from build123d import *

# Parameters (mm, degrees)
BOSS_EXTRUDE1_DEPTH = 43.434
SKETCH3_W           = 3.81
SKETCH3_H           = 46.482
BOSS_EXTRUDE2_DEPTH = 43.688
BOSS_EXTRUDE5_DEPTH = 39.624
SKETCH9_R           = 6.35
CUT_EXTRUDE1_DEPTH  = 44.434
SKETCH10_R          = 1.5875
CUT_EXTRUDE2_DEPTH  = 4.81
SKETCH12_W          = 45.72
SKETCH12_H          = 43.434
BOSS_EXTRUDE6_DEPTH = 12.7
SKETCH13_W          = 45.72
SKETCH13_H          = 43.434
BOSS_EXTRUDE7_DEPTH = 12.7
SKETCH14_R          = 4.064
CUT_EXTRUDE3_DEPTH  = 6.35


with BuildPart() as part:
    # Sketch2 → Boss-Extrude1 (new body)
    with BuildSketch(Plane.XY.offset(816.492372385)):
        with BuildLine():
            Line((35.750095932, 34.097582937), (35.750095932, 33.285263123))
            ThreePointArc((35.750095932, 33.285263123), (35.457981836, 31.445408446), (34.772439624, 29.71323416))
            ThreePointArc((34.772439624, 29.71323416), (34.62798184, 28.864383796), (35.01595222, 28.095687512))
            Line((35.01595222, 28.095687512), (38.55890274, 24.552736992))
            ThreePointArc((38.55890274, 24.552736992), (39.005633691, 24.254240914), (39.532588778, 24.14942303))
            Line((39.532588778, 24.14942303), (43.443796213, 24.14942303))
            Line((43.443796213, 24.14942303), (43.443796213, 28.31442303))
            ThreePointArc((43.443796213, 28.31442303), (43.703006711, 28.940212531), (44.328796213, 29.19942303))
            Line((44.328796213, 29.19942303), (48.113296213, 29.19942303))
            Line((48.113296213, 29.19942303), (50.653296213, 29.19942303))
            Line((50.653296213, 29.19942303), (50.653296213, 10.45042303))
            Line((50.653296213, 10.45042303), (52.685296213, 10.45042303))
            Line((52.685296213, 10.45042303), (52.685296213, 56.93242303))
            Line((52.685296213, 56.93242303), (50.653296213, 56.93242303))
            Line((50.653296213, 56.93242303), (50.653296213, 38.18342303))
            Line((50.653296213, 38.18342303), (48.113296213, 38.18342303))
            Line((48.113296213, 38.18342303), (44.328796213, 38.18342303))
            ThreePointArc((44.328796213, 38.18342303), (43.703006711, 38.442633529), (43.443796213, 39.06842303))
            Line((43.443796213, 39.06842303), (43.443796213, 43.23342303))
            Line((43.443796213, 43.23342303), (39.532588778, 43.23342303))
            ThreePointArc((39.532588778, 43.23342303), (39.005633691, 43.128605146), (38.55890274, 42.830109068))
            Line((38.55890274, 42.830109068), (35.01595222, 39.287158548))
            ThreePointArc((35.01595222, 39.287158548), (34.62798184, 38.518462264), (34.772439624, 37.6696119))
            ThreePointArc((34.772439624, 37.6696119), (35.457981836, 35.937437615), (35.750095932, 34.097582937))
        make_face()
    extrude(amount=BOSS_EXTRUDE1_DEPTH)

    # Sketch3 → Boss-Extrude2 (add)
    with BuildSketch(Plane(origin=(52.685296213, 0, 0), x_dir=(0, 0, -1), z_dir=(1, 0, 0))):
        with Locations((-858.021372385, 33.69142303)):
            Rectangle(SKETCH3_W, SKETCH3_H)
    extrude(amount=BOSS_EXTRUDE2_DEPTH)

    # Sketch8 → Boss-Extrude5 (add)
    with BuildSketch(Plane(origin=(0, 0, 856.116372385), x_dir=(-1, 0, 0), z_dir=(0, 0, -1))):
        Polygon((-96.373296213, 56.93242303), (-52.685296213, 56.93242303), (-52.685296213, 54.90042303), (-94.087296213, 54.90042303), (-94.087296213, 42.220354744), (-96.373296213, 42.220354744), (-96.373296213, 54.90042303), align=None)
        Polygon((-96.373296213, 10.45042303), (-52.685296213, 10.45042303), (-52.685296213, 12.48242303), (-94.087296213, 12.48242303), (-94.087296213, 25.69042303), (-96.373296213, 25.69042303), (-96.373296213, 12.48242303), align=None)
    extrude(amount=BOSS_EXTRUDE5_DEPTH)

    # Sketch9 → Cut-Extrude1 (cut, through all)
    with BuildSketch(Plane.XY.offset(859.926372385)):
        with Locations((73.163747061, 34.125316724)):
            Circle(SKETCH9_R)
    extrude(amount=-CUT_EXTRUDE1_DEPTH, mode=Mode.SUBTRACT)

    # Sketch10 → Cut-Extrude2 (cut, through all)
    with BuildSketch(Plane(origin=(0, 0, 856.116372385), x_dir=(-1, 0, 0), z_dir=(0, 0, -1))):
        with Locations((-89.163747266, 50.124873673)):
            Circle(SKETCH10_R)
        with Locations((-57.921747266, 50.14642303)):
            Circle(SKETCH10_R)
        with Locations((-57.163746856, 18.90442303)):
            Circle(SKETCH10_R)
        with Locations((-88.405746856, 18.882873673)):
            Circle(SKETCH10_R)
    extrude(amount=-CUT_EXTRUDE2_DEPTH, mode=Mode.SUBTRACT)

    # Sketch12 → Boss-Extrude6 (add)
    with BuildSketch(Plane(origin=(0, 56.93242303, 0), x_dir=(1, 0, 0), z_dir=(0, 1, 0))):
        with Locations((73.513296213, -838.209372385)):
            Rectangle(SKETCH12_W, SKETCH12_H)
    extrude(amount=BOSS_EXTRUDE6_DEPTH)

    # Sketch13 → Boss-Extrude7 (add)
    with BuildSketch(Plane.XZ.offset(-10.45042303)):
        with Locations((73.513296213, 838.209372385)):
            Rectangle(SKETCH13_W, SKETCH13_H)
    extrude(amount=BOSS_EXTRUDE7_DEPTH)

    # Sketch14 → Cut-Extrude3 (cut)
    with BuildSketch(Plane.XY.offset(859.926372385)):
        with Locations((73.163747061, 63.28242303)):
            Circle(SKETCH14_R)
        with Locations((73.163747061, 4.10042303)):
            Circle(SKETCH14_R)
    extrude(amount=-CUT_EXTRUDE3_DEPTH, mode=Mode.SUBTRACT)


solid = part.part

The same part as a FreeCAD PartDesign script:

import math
import FreeCAD as App
import Part
import Sketcher

V = App.Vector
Q = App.Units.Quantity

doc = App.newDocument("Part")
body = doc.addObject("PartDesign::Body", "Body")

sketch1 = body.newObject("Sketcher::SketchObject", "Sketch")
sketch1.AttachmentSupport = (doc.getObject("XY_Plane"), [""])
sketch1.MapMode = "FlatFace"
sketch1.AttachmentOffset = App.Placement(V(0, 0, 816.492372), App.Rotation())
sketch1.addGeometry(Part.LineSegment(V(35.750096, 34.097583, 0), V(35.750096, 33.285263, 0)), False)
sketch1.addGeometry(Part.ArcOfCircle(Part.Circle(V(27.251796, 33.691423, 0), V(0, 0, 1), 8.508), math.radians(-27.877462), math.radians(-2.73626)), False)
sketch1.addGeometry(Part.ArcOfCircle(Part.Circle(V(35.989638, 29.069374, 0), V(0, 0, 1), 1.377), math.radians(152.122538), math.radians(225)), False)
sketch1.addGeometry(Part.LineSegment(V(35.015952, 28.095688, 0), V(38.558903, 24.552737, 0)), False)
sketch1.addGeometry(Part.ArcOfCircle(Part.Circle(V(39.532589, 25.526423, 0), V(0, 0, 1), 1.377), math.radians(-135), math.radians(-90)), False)
sketch1.addGeometry(Part.LineSegment(V(39.532589, 24.149423, 0), V(43.443796, 24.149423, 0)), False)
sketch1.addGeometry(Part.LineSegment(V(43.443796, 24.149423, 0), V(43.443796, 28.314423, 0)), False)
sketch1.addGeometry(Part.ArcOfCircle(Part.Circle(V(44.328796, 28.314423, 0), V(0, 0, 1), 0.885), math.radians(90), math.radians(180)), False)
sketch1.addGeometry(Part.LineSegment(V(44.328796, 29.199423, 0), V(50.653296, 29.199423, 0)), False)
sketch1.addGeometry(Part.LineSegment(V(50.653296, 29.199423, 0), V(50.653296, 10.450423, 0)), False)
sketch1.addGeometry(Part.LineSegment(V(50.653296, 10.450423, 0), V(52.685296, 10.450423, 0)), False)
sketch1.addGeometry(Part.LineSegment(V(52.685296, 10.450423, 0), V(52.685296, 56.932423, 0)), False)
sketch1.addGeometry(Part.LineSegment(V(52.685296, 56.932423, 0), V(50.653296, 56.932423, 0)), False)
sketch1.addGeometry(Part.LineSegment(V(50.653296, 56.932423, 0), V(50.653296, 38.183423, 0)), False)
sketch1.addGeometry(Part.LineSegment(V(50.653296, 38.183423, 0), V(44.328796, 38.183423, 0)), False)
sketch1.addGeometry(Part.ArcOfCircle(Part.Circle(V(44.328796, 39.068423, 0), V(0, 0, 1), 0.885), math.radians(180), math.radians(270)), False)
sketch1.addGeometry(Part.LineSegment(V(43.443796, 39.068423, 0), V(43.443796, 43.233423, 0)), False)
sketch1.addGeometry(Part.LineSegment(V(43.443796, 43.233423, 0), V(39.532589, 43.233423, 0)), False)
sketch1.addGeometry(Part.ArcOfCircle(Part.Circle(V(39.532589, 41.856423, 0), V(0, 0, 1), 1.377), math.radians(90), math.radians(135)), False)
sketch1.addGeometry(Part.LineSegment(V(38.558903, 42.830109, 0), V(35.015952, 39.287159, 0)), False)
sketch1.addGeometry(Part.ArcOfCircle(Part.Circle(V(35.989638, 38.313473, 0), V(0, 0, 1), 1.377), math.radians(135), math.radians(207.877462)), False)
sketch1.addGeometry(Part.ArcOfCircle(Part.Circle(V(27.251796, 33.691423, 0), V(0, 0, 1), 8.508), math.radians(2.73626), math.radians(27.877462)), False)
sketch1.addConstraint(Sketcher.Constraint("Coincident", 0, 2, 1, 2))
sketch1.addConstraint(Sketcher.Constraint("Tangent", 1, 1, 2, 1))
sketch1.addConstraint(Sketcher.Constraint("Tangent", 2, 2, 3, 1))
sketch1.addConstraint(Sketcher.Constraint("Tangent", 3, 2, 4, 1))
sketch1.addConstraint(Sketcher.Constraint("Tangent", 4, 2, 5, 1))
sketch1.addConstraint(Sketcher.Constraint("Coincident", 5, 2, 6, 1))
sketch1.addConstraint(Sketcher.Constraint("Tangent", 6, 2, 7, 2))
sketch1.addConstraint(Sketcher.Constraint("Tangent", 7, 1, 8, 1))
sketch1.addConstraint(Sketcher.Constraint("Coincident", 8, 2, 9, 1))
sketch1.addConstraint(Sketcher.Constraint("Coincident", 9, 2, 10, 1))
sketch1.addConstraint(Sketcher.Constraint("Coincident", 10, 2, 11, 1))
sketch1.addConstraint(Sketcher.Constraint("Coincident", 11, 2, 12, 1))
sketch1.addConstraint(Sketcher.Constraint("Coincident", 12, 2, 13, 1))
sketch1.addConstraint(Sketcher.Constraint("Coincident", 13, 2, 14, 1))
sketch1.addConstraint(Sketcher.Constraint("Tangent", 14, 2, 15, 2))
sketch1.addConstraint(Sketcher.Constraint("Tangent", 15, 1, 16, 1))
sketch1.addConstraint(Sketcher.Constraint("Coincident", 16, 2, 17, 1))
sketch1.addConstraint(Sketcher.Constraint("Tangent", 17, 2, 18, 1))
sketch1.addConstraint(Sketcher.Constraint("Tangent", 18, 2, 19, 1))
sketch1.addConstraint(Sketcher.Constraint("Tangent", 19, 2, 20, 1))
sketch1.addConstraint(Sketcher.Constraint("Tangent", 20, 2, 21, 2))
sketch1.addConstraint(Sketcher.Constraint("Coincident", 21, 1, 0, 1))
sketch1.addConstraint(Sketcher.Constraint("Vertical", 0))
sketch1.addConstraint(Sketcher.Constraint("Horizontal", 5))
sketch1.addConstraint(Sketcher.Constraint("Vertical", 6))
sketch1.addConstraint(Sketcher.Constraint("Horizontal", 8))
sketch1.addConstraint(Sketcher.Constraint("Vertical", 9))
sketch1.addConstraint(Sketcher.Constraint("Horizontal", 10))
sketch1.addConstraint(Sketcher.Constraint("Vertical", 11))
sketch1.addConstraint(Sketcher.Constraint("Horizontal", 12))
sketch1.addConstraint(Sketcher.Constraint("Vertical", 13))
sketch1.addConstraint(Sketcher.Constraint("Horizontal", 14))
sketch1.addConstraint(Sketcher.Constraint("Vertical", 16))
sketch1.addConstraint(Sketcher.Constraint("Horizontal", 17))
sketch1.addConstraint(Sketcher.Constraint("Coincident", 21, 3, 1, 3))
sketch1.addConstraint(Sketcher.Constraint("Equal", 2, 4))
sketch1.addConstraint(Sketcher.Constraint("Equal", 7, 15))
sketch1.addConstraint(Sketcher.Constraint("Equal", 4, 18))
sketch1.addConstraint(Sketcher.Constraint("Equal", 18, 20))
sketch1.addConstraint(Sketcher.Constraint("Equal", 1, 21))
sketch1.addConstraint(Sketcher.Constraint("Perpendicular", 3, 19))
sketch1.addConstraint(Sketcher.Constraint("Vertical", 7, 3, 15, 3))
sketch1.addConstraint(Sketcher.Constraint("Vertical", 4, 3, 18, 3))
sketch1.addConstraint(Sketcher.Constraint("Vertical", 2, 3, 20, 3))
sketch1.addConstraint(Sketcher.Constraint("Vertical", 9, 2, 12, 2))
sketch1.addConstraint(Sketcher.Constraint("Vertical", 3, 2, 18, 2))
sketch1.addConstraint(Sketcher.Constraint("Equal", 9, 13))
sketch1.addConstraint(Sketcher.Constraint("Equal", 6, 16))
sketch1.addConstraint(Sketcher.Constraint("DistanceX", 10, 1, 10, 2, Q("0.08 in")))
sketch1.addConstraint(Sketcher.Constraint("DistanceY", 11, 1, 11, 2, Q("1.83 in")))
sketch1.addConstraint(Sketcher.Constraint("Radius", 1, Q("8.508 mm")))
sketch1.addConstraint(Sketcher.Constraint("Radius", 2, Q("1.377 mm")))
sketch1.addConstraint(Sketcher.Constraint("Radius", 7, Q("0.885 mm")))
sketch1.addConstraint(Sketcher.Constraint("DistanceX", 8, 1, 8, 2, Q("6.3245 mm")))
sketch1.addConstraint(Sketcher.Constraint("DistanceY", 6, 1, 6, 2, Q("4.165 mm")))
sketch1.addConstraint(Sketcher.Constraint("DistanceY", 9, 2, 9, 1, Q("18.749 mm")))
sketch1.addConstraint(Sketcher.Constraint("DistanceY", 0, 2, 0, 1, Q("0.81232 mm")))
sketch1.addConstraint(Sketcher.Constraint("DistanceX", 1, 3, 7, 3, Q("17.077 mm")))
sketch1.addConstraint(Sketcher.Constraint("DistanceY", 2, 3, 20, 3, Q("9.244099 mm")))
sketch1.addConstraint(Sketcher.Constraint("DistanceX", -1, 1, 2, 3, Q("35.989638 mm")))
sketch1.addConstraint(Sketcher.Constraint("DistanceY", -1, 1, 18, 2, Q("42.830109 mm")))
pad1 = body.newObject("PartDesign::Pad", "Pad")
pad1.Profile = sketch1
pad1.Length = Q("1.71 in")

sketch2 = body.newObject("Sketcher::SketchObject", "Sketch001")
sketch2.AttachmentSupport = (doc.getObject("YZ_Plane"), [""])
sketch2.MapMode = "FlatFace"
sketch2.AttachmentOffset = App.Placement(V(0, 0, 52.685296), App.Rotation())
sketch2.addGeometry(Part.LineSegment(V(56.932423, 859.926372, 0), V(10.450423, 859.926372, 0)), False)
sketch2.addGeometry(Part.LineSegment(V(10.450423, 859.926372, 0), V(10.450423, 856.116372, 0)), False)
sketch2.addGeometry(Part.LineSegment(V(10.450423, 856.116372, 0), V(56.932423, 856.116372, 0)), False)
sketch2.addGeometry(Part.LineSegment(V(56.932423, 856.116372, 0), V(56.932423, 859.926372, 0)), False)
sketch2.addConstraint(Sketcher.Constraint("Coincident", 0, 2, 1, 1))
sketch2.addConstraint(Sketcher.Constraint("Coincident", 1, 2, 2, 1))
sketch2.addConstraint(Sketcher.Constraint("Coincident", 2, 2, 3, 1))
sketch2.addConstraint(Sketcher.Constraint("Coincident", 3, 2, 0, 1))
sketch2.addConstraint(Sketcher.Constraint("Horizontal", 0))
sketch2.addConstraint(Sketcher.Constraint("Vertical", 1))
sketch2.addConstraint(Sketcher.Constraint("Horizontal", 2))
sketch2.addConstraint(Sketcher.Constraint("Vertical", 3))
sketch2.addConstraint(Sketcher.Constraint("DistanceX", 0, 2, 0, 1, Q("1.83 in")))
sketch2.addConstraint(Sketcher.Constraint("DistanceY", 1, 2, 1, 1, Q("0.15 in")))
sketch2.addConstraint(Sketcher.Constraint("DistanceX", -1, 1, 0, 2, Q("10.450423 mm")))
sketch2.addConstraint(Sketcher.Constraint("DistanceY", -1, 1, 0, 2, Q("859.926372 mm")))
pad2 = body.newObject("PartDesign::Pad", "Pad001")
pad2.Profile = sketch2
pad2.Length = Q("1.72 in")

sketch3 = body.newObject("Sketcher::SketchObject", "Sketch002")
sketch3.AttachmentSupport = (doc.getObject("XY_Plane"), [""])
sketch3.MapMode = "FlatFace"
sketch3.AttachmentOffset = App.Placement(V(0, 0, 856.116372), App.Rotation())
sketch3.addGeometry(Part.LineSegment(V(52.685296, 56.932423, 0), V(96.373296, 56.932423, 0)), False)
sketch3.addGeometry(Part.LineSegment(V(96.373296, 56.932423, 0), V(96.373296, 42.220355, 0)), False)
sketch3.addGeometry(Part.LineSegment(V(96.373296, 42.220355, 0), V(94.087296, 42.220355, 0)), False)
sketch3.addGeometry(Part.LineSegment(V(94.087296, 42.220355, 0), V(94.087296, 54.900423, 0)), False)
sketch3.addGeometry(Part.LineSegment(V(94.087296, 54.900423, 0), V(52.685296, 54.900423, 0)), False)
sketch3.addGeometry(Part.LineSegment(V(52.685296, 54.900423, 0), V(52.685296, 56.932423, 0)), False)
sketch3.addGeometry(Part.LineSegment(V(96.373296, 10.450423, 0), V(52.685296, 10.450423, 0)), False)
sketch3.addGeometry(Part.LineSegment(V(52.685296, 10.450423, 0), V(52.685296, 12.482423, 0)), False)
sketch3.addGeometry(Part.LineSegment(V(52.685296, 12.482423, 0), V(94.087296, 12.482423, 0)), False)
sketch3.addGeometry(Part.LineSegment(V(94.087296, 12.482423, 0), V(94.087296, 25.690423, 0)), False)
sketch3.addGeometry(Part.LineSegment(V(94.087296, 25.690423, 0), V(96.373296, 25.690423, 0)), False)
sketch3.addGeometry(Part.LineSegment(V(96.373296, 25.690423, 0), V(96.373296, 10.450423, 0)), False)
sketch3.addConstraint(Sketcher.Constraint("Coincident", 0, 2, 1, 1))
sketch3.addConstraint(Sketcher.Constraint("Coincident", 1, 2, 2, 1))
sketch3.addConstraint(Sketcher.Constraint("Coincident", 2, 2, 3, 1))
sketch3.addConstraint(Sketcher.Constraint("Coincident", 3, 2, 4, 1))
sketch3.addConstraint(Sketcher.Constraint("Coincident", 4, 2, 5, 1))
sketch3.addConstraint(Sketcher.Constraint("Coincident", 5, 2, 0, 1))
sketch3.addConstraint(Sketcher.Constraint("Coincident", 6, 2, 7, 1))
sketch3.addConstraint(Sketcher.Constraint("Coincident", 7, 2, 8, 1))
sketch3.addConstraint(Sketcher.Constraint("Coincident", 8, 2, 9, 1))
sketch3.addConstraint(Sketcher.Constraint("Coincident", 9, 2, 10, 1))
sketch3.addConstraint(Sketcher.Constraint("Coincident", 10, 2, 11, 1))
sketch3.addConstraint(Sketcher.Constraint("Coincident", 11, 2, 6, 1))
sketch3.addConstraint(Sketcher.Constraint("Horizontal", 0))
sketch3.addConstraint(Sketcher.Constraint("Vertical", 1))
sketch3.addConstraint(Sketcher.Constraint("Horizontal", 2))
sketch3.addConstraint(Sketcher.Constraint("Vertical", 3))
sketch3.addConstraint(Sketcher.Constraint("Horizontal", 4))
sketch3.addConstraint(Sketcher.Constraint("Vertical", 5))
sketch3.addConstraint(Sketcher.Constraint("Horizontal", 6))
sketch3.addConstraint(Sketcher.Constraint("Vertical", 7))
sketch3.addConstraint(Sketcher.Constraint("Horizontal", 8))
sketch3.addConstraint(Sketcher.Constraint("Vertical", 9))
sketch3.addConstraint(Sketcher.Constraint("Horizontal", 10))
sketch3.addConstraint(Sketcher.Constraint("Vertical", 11))
sketch3.addConstraint(Sketcher.Constraint("Vertical", 5, 2, 6, 2))
sketch3.addConstraint(Sketcher.Constraint("Vertical", 3, 2, 8, 2))
sketch3.addConstraint(Sketcher.Constraint("Vertical", 1, 2, 10, 2))
sketch3.addConstraint(Sketcher.Constraint("Equal", 5, 7))
sketch3.addConstraint(Sketcher.Constraint("DistanceY", 11, 2, 11, 1, Q("0.6 in")))
sketch3.addConstraint(Sketcher.Constraint("DistanceX", 0, 1, 0, 2, Q("1.72 in")))
sketch3.addConstraint(Sketcher.Constraint("DistanceX", 2, 2, 2, 1, Q("0.09 in")))
sketch3.addConstraint(Sketcher.Constraint("DistanceY", 5, 1, 5, 2, Q("0.08 in")))
sketch3.addConstraint(Sketcher.Constraint("DistanceY", 6, 2, 4, 2, Q("1.75 in")))
sketch3.addConstraint(Sketcher.Constraint("DistanceY", 1, 2, 1, 1, Q("14.712068 mm")))
sketch3.addConstraint(Sketcher.Constraint("DistanceX", -1, 1, 0, 2, Q("96.373296 mm")))
sketch3.addConstraint(Sketcher.Constraint("DistanceY", -1, 1, 0, 2, Q("56.932423 mm")))
pad3 = body.newObject("PartDesign::Pad", "Pad002")
pad3.Profile = sketch3
pad3.Length = Q("1.56 in")
pad3.Reversed = True

sketch4 = body.newObject("Sketcher::SketchObject", "Sketch003")
sketch4.AttachmentSupport = (doc.getObject("XY_Plane"), [""])
sketch4.MapMode = "FlatFace"
sketch4.AttachmentOffset = App.Placement(V(0, 0, 859.926372), App.Rotation())
sketch4.addGeometry(Part.Circle(V(73.163747, 34.125317, 0), V(0, 0, 1), 6.35), False)
sketch4.addConstraint(Sketcher.Constraint("Diameter", 0, Q("0.5 in")))
sketch4.addConstraint(Sketcher.Constraint("DistanceX", -1, 1, 0, 3, Q("73.163747 mm")))
sketch4.addConstraint(Sketcher.Constraint("DistanceY", -1, 1, 0, 3, Q("34.125317 mm")))
pocket1 = body.newObject("PartDesign::Pocket", "Pocket")
pocket1.Profile = sketch4
pocket1.Type = "ThroughAll"

sketch5 = body.newObject("Sketcher::SketchObject", "Sketch004")
sketch5.AttachmentSupport = (doc.getObject("XY_Plane"), [""])
sketch5.MapMode = "FlatFace"
sketch5.AttachmentOffset = App.Placement(V(0, 0, 856.116372), App.Rotation())
sketch5.addGeometry(Part.Circle(V(89.163747, 50.124874, 0), V(0, 0, 1), 1.5875), False)
sketch5.addGeometry(Part.Circle(V(57.921747, 50.146423, 0), V(0, 0, 1), 1.5875), False)
sketch5.addGeometry(Part.Circle(V(57.163747, 18.904423, 0), V(0, 0, 1), 1.5875), False)
sketch5.addGeometry(Part.Circle(V(88.405747, 18.882874, 0), V(0, 0, 1), 1.5875), False)
sketch5.addConstraint(Sketcher.Constraint("Equal", 0, 1))
sketch5.addConstraint(Sketcher.Constraint("Equal", 1, 2))
sketch5.addConstraint(Sketcher.Constraint("Equal", 2, 3))
sketch5.addConstraint(Sketcher.Constraint("Diameter", 0, Q("0.125 in")))
sketch5.addConstraint(Sketcher.Constraint("DistanceX", 1, 3, 0, 3, Q("1.23 in")))
sketch5.addConstraint(Sketcher.Constraint("DistanceY", 2, 3, 1, 3, Q("1.23 in")))
sketch5.addConstraint(Sketcher.Constraint("DistanceX", 2, 3, 3, 3, Q("1.23 in")))
sketch5.addConstraint(Sketcher.Constraint("DistanceY", 3, 3, 0, 3, Q("1.23 in")))
sketch5.addConstraint(Sketcher.Constraint("DistanceX", 2, 3, 1, 3, Q("0.758 mm")))
sketch5.addConstraint(Sketcher.Constraint("DistanceY", 0, 3, 1, 3, Q("0.021549 mm")))
sketch5.addConstraint(Sketcher.Constraint("DistanceX", -1, 1, 0, 3, Q("89.163747 mm")))
sketch5.addConstraint(Sketcher.Constraint("DistanceY", -1, 1, 0, 3, Q("50.124874 mm")))
pocket2 = body.newObject("PartDesign::Pocket", "Pocket001")
pocket2.Profile = sketch5
pocket2.Type = "ThroughAll"
pocket2.Reversed = True

sketch6 = body.newObject("Sketcher::SketchObject", "Sketch005")
sketch6.AttachmentSupport = (doc.getObject("XZ_Plane"), [""])
sketch6.MapMode = "FlatFace"
sketch6.AttachmentOffset = App.Placement(V(0, 0, -56.932423), App.Rotation())
sketch6.addGeometry(Part.LineSegment(V(50.653296, 816.492372, 0), V(50.653296, 859.926372, 0)), False)
sketch6.addGeometry(Part.LineSegment(V(50.653296, 859.926372, 0), V(96.373296, 859.926372, 0)), False)
sketch6.addGeometry(Part.LineSegment(V(96.373296, 859.926372, 0), V(96.373296, 816.492372, 0)), False)
sketch6.addGeometry(Part.LineSegment(V(96.373296, 816.492372, 0), V(50.653296, 816.492372, 0)), False)
sketch6.addConstraint(Sketcher.Constraint("Coincident", 0, 2, 1, 1))
sketch6.addConstraint(Sketcher.Constraint("Coincident", 1, 2, 2, 1))
sketch6.addConstraint(Sketcher.Constraint("Coincident", 2, 2, 3, 1))
sketch6.addConstraint(Sketcher.Constraint("Coincident", 3, 2, 0, 1))
sketch6.addConstraint(Sketcher.Constraint("Vertical", 0))
sketch6.addConstraint(Sketcher.Constraint("Horizontal", 1))
sketch6.addConstraint(Sketcher.Constraint("Vertical", 2))
sketch6.addConstraint(Sketcher.Constraint("Horizontal", 3))
sketch6.addConstraint(Sketcher.Constraint("DistanceX", 1, 1, 1, 2, Q("1.8 in")))
sketch6.addConstraint(Sketcher.Constraint("DistanceY", 0, 1, 0, 2, Q("1.71 in")))
sketch6.addConstraint(Sketcher.Constraint("DistanceX", -1, 1, 0, 2, Q("50.653296 mm")))
sketch6.addConstraint(Sketcher.Constraint("DistanceY", -1, 1, 0, 2, Q("859.926372 mm")))
pad4 = body.newObject("PartDesign::Pad", "Pad003")
pad4.Profile = sketch6
pad4.Length = Q("0.5 in")
pad4.Reversed = True

sketch7 = body.newObject("Sketcher::SketchObject", "Sketch006")
sketch7.AttachmentSupport = (doc.getObject("XZ_Plane"), [""])
sketch7.MapMode = "FlatFace"
sketch7.AttachmentOffset = App.Placement(V(0, 0, -10.450423), App.Rotation())
sketch7.addGeometry(Part.LineSegment(V(50.653296, 859.926372, 0), V(50.653296, 816.492372, 0)), False)
sketch7.addGeometry(Part.LineSegment(V(50.653296, 816.492372, 0), V(96.373296, 816.492372, 0)), False)
sketch7.addGeometry(Part.LineSegment(V(96.373296, 816.492372, 0), V(96.373296, 859.926372, 0)), False)
sketch7.addGeometry(Part.LineSegment(V(96.373296, 859.926372, 0), V(50.653296, 859.926372, 0)), False)
sketch7.addConstraint(Sketcher.Constraint("Coincident", 0, 2, 1, 1))
sketch7.addConstraint(Sketcher.Constraint("Coincident", 1, 2, 2, 1))
sketch7.addConstraint(Sketcher.Constraint("Coincident", 2, 2, 3, 1))
sketch7.addConstraint(Sketcher.Constraint("Coincident", 3, 2, 0, 1))
sketch7.addConstraint(Sketcher.Constraint("Vertical", 0))
sketch7.addConstraint(Sketcher.Constraint("Horizontal", 1))
sketch7.addConstraint(Sketcher.Constraint("Vertical", 2))
sketch7.addConstraint(Sketcher.Constraint("Horizontal", 3))
sketch7.addConstraint(Sketcher.Constraint("DistanceX", 1, 1, 1, 2, Q("1.8 in")))
sketch7.addConstraint(Sketcher.Constraint("DistanceY", 0, 2, 0, 1, Q("1.71 in")))
sketch7.addConstraint(Sketcher.Constraint("DistanceX", -1, 1, 0, 2, Q("50.653296 mm")))
sketch7.addConstraint(Sketcher.Constraint("DistanceY", -1, 1, 0, 2, Q("816.492372 mm")))
pad5 = body.newObject("PartDesign::Pad", "Pad004")
pad5.Profile = sketch7
pad5.Length = Q("0.5 in")

sketch8 = body.newObject("Sketcher::SketchObject", "Sketch007")
sketch8.AttachmentSupport = (doc.getObject("XY_Plane"), [""])
sketch8.MapMode = "FlatFace"
sketch8.AttachmentOffset = App.Placement(V(0, 0, 859.926372), App.Rotation())
sketch8.addGeometry(Part.Circle(V(73.163747, 63.282423, 0), V(0, 0, 1), 4.064), False)
sketch8.addGeometry(Part.Circle(V(73.163747, 4.100423, 0), V(0, 0, 1), 4.064), False)
sketch8.addConstraint(Sketcher.Constraint("Equal", 0, 1))
sketch8.addConstraint(Sketcher.Constraint("Vertical", 0, 3, 1, 3))
sketch8.addConstraint(Sketcher.Constraint("Diameter", 0, Q("0.32 in")))
sketch8.addConstraint(Sketcher.Constraint("DistanceY", 1, 3, 0, 3, Q("2.33 in")))
sketch8.addConstraint(Sketcher.Constraint("DistanceX", -1, 1, 0, 3, Q("73.163747 mm")))
sketch8.addConstraint(Sketcher.Constraint("DistanceY", -1, 1, 0, 3, Q("63.282423 mm")))
pocket3 = body.newObject("PartDesign::Pocket", "Pocket002")
pocket3.Profile = sketch8
pocket3.Length = Q("0.25 in")

doc.recompute()
